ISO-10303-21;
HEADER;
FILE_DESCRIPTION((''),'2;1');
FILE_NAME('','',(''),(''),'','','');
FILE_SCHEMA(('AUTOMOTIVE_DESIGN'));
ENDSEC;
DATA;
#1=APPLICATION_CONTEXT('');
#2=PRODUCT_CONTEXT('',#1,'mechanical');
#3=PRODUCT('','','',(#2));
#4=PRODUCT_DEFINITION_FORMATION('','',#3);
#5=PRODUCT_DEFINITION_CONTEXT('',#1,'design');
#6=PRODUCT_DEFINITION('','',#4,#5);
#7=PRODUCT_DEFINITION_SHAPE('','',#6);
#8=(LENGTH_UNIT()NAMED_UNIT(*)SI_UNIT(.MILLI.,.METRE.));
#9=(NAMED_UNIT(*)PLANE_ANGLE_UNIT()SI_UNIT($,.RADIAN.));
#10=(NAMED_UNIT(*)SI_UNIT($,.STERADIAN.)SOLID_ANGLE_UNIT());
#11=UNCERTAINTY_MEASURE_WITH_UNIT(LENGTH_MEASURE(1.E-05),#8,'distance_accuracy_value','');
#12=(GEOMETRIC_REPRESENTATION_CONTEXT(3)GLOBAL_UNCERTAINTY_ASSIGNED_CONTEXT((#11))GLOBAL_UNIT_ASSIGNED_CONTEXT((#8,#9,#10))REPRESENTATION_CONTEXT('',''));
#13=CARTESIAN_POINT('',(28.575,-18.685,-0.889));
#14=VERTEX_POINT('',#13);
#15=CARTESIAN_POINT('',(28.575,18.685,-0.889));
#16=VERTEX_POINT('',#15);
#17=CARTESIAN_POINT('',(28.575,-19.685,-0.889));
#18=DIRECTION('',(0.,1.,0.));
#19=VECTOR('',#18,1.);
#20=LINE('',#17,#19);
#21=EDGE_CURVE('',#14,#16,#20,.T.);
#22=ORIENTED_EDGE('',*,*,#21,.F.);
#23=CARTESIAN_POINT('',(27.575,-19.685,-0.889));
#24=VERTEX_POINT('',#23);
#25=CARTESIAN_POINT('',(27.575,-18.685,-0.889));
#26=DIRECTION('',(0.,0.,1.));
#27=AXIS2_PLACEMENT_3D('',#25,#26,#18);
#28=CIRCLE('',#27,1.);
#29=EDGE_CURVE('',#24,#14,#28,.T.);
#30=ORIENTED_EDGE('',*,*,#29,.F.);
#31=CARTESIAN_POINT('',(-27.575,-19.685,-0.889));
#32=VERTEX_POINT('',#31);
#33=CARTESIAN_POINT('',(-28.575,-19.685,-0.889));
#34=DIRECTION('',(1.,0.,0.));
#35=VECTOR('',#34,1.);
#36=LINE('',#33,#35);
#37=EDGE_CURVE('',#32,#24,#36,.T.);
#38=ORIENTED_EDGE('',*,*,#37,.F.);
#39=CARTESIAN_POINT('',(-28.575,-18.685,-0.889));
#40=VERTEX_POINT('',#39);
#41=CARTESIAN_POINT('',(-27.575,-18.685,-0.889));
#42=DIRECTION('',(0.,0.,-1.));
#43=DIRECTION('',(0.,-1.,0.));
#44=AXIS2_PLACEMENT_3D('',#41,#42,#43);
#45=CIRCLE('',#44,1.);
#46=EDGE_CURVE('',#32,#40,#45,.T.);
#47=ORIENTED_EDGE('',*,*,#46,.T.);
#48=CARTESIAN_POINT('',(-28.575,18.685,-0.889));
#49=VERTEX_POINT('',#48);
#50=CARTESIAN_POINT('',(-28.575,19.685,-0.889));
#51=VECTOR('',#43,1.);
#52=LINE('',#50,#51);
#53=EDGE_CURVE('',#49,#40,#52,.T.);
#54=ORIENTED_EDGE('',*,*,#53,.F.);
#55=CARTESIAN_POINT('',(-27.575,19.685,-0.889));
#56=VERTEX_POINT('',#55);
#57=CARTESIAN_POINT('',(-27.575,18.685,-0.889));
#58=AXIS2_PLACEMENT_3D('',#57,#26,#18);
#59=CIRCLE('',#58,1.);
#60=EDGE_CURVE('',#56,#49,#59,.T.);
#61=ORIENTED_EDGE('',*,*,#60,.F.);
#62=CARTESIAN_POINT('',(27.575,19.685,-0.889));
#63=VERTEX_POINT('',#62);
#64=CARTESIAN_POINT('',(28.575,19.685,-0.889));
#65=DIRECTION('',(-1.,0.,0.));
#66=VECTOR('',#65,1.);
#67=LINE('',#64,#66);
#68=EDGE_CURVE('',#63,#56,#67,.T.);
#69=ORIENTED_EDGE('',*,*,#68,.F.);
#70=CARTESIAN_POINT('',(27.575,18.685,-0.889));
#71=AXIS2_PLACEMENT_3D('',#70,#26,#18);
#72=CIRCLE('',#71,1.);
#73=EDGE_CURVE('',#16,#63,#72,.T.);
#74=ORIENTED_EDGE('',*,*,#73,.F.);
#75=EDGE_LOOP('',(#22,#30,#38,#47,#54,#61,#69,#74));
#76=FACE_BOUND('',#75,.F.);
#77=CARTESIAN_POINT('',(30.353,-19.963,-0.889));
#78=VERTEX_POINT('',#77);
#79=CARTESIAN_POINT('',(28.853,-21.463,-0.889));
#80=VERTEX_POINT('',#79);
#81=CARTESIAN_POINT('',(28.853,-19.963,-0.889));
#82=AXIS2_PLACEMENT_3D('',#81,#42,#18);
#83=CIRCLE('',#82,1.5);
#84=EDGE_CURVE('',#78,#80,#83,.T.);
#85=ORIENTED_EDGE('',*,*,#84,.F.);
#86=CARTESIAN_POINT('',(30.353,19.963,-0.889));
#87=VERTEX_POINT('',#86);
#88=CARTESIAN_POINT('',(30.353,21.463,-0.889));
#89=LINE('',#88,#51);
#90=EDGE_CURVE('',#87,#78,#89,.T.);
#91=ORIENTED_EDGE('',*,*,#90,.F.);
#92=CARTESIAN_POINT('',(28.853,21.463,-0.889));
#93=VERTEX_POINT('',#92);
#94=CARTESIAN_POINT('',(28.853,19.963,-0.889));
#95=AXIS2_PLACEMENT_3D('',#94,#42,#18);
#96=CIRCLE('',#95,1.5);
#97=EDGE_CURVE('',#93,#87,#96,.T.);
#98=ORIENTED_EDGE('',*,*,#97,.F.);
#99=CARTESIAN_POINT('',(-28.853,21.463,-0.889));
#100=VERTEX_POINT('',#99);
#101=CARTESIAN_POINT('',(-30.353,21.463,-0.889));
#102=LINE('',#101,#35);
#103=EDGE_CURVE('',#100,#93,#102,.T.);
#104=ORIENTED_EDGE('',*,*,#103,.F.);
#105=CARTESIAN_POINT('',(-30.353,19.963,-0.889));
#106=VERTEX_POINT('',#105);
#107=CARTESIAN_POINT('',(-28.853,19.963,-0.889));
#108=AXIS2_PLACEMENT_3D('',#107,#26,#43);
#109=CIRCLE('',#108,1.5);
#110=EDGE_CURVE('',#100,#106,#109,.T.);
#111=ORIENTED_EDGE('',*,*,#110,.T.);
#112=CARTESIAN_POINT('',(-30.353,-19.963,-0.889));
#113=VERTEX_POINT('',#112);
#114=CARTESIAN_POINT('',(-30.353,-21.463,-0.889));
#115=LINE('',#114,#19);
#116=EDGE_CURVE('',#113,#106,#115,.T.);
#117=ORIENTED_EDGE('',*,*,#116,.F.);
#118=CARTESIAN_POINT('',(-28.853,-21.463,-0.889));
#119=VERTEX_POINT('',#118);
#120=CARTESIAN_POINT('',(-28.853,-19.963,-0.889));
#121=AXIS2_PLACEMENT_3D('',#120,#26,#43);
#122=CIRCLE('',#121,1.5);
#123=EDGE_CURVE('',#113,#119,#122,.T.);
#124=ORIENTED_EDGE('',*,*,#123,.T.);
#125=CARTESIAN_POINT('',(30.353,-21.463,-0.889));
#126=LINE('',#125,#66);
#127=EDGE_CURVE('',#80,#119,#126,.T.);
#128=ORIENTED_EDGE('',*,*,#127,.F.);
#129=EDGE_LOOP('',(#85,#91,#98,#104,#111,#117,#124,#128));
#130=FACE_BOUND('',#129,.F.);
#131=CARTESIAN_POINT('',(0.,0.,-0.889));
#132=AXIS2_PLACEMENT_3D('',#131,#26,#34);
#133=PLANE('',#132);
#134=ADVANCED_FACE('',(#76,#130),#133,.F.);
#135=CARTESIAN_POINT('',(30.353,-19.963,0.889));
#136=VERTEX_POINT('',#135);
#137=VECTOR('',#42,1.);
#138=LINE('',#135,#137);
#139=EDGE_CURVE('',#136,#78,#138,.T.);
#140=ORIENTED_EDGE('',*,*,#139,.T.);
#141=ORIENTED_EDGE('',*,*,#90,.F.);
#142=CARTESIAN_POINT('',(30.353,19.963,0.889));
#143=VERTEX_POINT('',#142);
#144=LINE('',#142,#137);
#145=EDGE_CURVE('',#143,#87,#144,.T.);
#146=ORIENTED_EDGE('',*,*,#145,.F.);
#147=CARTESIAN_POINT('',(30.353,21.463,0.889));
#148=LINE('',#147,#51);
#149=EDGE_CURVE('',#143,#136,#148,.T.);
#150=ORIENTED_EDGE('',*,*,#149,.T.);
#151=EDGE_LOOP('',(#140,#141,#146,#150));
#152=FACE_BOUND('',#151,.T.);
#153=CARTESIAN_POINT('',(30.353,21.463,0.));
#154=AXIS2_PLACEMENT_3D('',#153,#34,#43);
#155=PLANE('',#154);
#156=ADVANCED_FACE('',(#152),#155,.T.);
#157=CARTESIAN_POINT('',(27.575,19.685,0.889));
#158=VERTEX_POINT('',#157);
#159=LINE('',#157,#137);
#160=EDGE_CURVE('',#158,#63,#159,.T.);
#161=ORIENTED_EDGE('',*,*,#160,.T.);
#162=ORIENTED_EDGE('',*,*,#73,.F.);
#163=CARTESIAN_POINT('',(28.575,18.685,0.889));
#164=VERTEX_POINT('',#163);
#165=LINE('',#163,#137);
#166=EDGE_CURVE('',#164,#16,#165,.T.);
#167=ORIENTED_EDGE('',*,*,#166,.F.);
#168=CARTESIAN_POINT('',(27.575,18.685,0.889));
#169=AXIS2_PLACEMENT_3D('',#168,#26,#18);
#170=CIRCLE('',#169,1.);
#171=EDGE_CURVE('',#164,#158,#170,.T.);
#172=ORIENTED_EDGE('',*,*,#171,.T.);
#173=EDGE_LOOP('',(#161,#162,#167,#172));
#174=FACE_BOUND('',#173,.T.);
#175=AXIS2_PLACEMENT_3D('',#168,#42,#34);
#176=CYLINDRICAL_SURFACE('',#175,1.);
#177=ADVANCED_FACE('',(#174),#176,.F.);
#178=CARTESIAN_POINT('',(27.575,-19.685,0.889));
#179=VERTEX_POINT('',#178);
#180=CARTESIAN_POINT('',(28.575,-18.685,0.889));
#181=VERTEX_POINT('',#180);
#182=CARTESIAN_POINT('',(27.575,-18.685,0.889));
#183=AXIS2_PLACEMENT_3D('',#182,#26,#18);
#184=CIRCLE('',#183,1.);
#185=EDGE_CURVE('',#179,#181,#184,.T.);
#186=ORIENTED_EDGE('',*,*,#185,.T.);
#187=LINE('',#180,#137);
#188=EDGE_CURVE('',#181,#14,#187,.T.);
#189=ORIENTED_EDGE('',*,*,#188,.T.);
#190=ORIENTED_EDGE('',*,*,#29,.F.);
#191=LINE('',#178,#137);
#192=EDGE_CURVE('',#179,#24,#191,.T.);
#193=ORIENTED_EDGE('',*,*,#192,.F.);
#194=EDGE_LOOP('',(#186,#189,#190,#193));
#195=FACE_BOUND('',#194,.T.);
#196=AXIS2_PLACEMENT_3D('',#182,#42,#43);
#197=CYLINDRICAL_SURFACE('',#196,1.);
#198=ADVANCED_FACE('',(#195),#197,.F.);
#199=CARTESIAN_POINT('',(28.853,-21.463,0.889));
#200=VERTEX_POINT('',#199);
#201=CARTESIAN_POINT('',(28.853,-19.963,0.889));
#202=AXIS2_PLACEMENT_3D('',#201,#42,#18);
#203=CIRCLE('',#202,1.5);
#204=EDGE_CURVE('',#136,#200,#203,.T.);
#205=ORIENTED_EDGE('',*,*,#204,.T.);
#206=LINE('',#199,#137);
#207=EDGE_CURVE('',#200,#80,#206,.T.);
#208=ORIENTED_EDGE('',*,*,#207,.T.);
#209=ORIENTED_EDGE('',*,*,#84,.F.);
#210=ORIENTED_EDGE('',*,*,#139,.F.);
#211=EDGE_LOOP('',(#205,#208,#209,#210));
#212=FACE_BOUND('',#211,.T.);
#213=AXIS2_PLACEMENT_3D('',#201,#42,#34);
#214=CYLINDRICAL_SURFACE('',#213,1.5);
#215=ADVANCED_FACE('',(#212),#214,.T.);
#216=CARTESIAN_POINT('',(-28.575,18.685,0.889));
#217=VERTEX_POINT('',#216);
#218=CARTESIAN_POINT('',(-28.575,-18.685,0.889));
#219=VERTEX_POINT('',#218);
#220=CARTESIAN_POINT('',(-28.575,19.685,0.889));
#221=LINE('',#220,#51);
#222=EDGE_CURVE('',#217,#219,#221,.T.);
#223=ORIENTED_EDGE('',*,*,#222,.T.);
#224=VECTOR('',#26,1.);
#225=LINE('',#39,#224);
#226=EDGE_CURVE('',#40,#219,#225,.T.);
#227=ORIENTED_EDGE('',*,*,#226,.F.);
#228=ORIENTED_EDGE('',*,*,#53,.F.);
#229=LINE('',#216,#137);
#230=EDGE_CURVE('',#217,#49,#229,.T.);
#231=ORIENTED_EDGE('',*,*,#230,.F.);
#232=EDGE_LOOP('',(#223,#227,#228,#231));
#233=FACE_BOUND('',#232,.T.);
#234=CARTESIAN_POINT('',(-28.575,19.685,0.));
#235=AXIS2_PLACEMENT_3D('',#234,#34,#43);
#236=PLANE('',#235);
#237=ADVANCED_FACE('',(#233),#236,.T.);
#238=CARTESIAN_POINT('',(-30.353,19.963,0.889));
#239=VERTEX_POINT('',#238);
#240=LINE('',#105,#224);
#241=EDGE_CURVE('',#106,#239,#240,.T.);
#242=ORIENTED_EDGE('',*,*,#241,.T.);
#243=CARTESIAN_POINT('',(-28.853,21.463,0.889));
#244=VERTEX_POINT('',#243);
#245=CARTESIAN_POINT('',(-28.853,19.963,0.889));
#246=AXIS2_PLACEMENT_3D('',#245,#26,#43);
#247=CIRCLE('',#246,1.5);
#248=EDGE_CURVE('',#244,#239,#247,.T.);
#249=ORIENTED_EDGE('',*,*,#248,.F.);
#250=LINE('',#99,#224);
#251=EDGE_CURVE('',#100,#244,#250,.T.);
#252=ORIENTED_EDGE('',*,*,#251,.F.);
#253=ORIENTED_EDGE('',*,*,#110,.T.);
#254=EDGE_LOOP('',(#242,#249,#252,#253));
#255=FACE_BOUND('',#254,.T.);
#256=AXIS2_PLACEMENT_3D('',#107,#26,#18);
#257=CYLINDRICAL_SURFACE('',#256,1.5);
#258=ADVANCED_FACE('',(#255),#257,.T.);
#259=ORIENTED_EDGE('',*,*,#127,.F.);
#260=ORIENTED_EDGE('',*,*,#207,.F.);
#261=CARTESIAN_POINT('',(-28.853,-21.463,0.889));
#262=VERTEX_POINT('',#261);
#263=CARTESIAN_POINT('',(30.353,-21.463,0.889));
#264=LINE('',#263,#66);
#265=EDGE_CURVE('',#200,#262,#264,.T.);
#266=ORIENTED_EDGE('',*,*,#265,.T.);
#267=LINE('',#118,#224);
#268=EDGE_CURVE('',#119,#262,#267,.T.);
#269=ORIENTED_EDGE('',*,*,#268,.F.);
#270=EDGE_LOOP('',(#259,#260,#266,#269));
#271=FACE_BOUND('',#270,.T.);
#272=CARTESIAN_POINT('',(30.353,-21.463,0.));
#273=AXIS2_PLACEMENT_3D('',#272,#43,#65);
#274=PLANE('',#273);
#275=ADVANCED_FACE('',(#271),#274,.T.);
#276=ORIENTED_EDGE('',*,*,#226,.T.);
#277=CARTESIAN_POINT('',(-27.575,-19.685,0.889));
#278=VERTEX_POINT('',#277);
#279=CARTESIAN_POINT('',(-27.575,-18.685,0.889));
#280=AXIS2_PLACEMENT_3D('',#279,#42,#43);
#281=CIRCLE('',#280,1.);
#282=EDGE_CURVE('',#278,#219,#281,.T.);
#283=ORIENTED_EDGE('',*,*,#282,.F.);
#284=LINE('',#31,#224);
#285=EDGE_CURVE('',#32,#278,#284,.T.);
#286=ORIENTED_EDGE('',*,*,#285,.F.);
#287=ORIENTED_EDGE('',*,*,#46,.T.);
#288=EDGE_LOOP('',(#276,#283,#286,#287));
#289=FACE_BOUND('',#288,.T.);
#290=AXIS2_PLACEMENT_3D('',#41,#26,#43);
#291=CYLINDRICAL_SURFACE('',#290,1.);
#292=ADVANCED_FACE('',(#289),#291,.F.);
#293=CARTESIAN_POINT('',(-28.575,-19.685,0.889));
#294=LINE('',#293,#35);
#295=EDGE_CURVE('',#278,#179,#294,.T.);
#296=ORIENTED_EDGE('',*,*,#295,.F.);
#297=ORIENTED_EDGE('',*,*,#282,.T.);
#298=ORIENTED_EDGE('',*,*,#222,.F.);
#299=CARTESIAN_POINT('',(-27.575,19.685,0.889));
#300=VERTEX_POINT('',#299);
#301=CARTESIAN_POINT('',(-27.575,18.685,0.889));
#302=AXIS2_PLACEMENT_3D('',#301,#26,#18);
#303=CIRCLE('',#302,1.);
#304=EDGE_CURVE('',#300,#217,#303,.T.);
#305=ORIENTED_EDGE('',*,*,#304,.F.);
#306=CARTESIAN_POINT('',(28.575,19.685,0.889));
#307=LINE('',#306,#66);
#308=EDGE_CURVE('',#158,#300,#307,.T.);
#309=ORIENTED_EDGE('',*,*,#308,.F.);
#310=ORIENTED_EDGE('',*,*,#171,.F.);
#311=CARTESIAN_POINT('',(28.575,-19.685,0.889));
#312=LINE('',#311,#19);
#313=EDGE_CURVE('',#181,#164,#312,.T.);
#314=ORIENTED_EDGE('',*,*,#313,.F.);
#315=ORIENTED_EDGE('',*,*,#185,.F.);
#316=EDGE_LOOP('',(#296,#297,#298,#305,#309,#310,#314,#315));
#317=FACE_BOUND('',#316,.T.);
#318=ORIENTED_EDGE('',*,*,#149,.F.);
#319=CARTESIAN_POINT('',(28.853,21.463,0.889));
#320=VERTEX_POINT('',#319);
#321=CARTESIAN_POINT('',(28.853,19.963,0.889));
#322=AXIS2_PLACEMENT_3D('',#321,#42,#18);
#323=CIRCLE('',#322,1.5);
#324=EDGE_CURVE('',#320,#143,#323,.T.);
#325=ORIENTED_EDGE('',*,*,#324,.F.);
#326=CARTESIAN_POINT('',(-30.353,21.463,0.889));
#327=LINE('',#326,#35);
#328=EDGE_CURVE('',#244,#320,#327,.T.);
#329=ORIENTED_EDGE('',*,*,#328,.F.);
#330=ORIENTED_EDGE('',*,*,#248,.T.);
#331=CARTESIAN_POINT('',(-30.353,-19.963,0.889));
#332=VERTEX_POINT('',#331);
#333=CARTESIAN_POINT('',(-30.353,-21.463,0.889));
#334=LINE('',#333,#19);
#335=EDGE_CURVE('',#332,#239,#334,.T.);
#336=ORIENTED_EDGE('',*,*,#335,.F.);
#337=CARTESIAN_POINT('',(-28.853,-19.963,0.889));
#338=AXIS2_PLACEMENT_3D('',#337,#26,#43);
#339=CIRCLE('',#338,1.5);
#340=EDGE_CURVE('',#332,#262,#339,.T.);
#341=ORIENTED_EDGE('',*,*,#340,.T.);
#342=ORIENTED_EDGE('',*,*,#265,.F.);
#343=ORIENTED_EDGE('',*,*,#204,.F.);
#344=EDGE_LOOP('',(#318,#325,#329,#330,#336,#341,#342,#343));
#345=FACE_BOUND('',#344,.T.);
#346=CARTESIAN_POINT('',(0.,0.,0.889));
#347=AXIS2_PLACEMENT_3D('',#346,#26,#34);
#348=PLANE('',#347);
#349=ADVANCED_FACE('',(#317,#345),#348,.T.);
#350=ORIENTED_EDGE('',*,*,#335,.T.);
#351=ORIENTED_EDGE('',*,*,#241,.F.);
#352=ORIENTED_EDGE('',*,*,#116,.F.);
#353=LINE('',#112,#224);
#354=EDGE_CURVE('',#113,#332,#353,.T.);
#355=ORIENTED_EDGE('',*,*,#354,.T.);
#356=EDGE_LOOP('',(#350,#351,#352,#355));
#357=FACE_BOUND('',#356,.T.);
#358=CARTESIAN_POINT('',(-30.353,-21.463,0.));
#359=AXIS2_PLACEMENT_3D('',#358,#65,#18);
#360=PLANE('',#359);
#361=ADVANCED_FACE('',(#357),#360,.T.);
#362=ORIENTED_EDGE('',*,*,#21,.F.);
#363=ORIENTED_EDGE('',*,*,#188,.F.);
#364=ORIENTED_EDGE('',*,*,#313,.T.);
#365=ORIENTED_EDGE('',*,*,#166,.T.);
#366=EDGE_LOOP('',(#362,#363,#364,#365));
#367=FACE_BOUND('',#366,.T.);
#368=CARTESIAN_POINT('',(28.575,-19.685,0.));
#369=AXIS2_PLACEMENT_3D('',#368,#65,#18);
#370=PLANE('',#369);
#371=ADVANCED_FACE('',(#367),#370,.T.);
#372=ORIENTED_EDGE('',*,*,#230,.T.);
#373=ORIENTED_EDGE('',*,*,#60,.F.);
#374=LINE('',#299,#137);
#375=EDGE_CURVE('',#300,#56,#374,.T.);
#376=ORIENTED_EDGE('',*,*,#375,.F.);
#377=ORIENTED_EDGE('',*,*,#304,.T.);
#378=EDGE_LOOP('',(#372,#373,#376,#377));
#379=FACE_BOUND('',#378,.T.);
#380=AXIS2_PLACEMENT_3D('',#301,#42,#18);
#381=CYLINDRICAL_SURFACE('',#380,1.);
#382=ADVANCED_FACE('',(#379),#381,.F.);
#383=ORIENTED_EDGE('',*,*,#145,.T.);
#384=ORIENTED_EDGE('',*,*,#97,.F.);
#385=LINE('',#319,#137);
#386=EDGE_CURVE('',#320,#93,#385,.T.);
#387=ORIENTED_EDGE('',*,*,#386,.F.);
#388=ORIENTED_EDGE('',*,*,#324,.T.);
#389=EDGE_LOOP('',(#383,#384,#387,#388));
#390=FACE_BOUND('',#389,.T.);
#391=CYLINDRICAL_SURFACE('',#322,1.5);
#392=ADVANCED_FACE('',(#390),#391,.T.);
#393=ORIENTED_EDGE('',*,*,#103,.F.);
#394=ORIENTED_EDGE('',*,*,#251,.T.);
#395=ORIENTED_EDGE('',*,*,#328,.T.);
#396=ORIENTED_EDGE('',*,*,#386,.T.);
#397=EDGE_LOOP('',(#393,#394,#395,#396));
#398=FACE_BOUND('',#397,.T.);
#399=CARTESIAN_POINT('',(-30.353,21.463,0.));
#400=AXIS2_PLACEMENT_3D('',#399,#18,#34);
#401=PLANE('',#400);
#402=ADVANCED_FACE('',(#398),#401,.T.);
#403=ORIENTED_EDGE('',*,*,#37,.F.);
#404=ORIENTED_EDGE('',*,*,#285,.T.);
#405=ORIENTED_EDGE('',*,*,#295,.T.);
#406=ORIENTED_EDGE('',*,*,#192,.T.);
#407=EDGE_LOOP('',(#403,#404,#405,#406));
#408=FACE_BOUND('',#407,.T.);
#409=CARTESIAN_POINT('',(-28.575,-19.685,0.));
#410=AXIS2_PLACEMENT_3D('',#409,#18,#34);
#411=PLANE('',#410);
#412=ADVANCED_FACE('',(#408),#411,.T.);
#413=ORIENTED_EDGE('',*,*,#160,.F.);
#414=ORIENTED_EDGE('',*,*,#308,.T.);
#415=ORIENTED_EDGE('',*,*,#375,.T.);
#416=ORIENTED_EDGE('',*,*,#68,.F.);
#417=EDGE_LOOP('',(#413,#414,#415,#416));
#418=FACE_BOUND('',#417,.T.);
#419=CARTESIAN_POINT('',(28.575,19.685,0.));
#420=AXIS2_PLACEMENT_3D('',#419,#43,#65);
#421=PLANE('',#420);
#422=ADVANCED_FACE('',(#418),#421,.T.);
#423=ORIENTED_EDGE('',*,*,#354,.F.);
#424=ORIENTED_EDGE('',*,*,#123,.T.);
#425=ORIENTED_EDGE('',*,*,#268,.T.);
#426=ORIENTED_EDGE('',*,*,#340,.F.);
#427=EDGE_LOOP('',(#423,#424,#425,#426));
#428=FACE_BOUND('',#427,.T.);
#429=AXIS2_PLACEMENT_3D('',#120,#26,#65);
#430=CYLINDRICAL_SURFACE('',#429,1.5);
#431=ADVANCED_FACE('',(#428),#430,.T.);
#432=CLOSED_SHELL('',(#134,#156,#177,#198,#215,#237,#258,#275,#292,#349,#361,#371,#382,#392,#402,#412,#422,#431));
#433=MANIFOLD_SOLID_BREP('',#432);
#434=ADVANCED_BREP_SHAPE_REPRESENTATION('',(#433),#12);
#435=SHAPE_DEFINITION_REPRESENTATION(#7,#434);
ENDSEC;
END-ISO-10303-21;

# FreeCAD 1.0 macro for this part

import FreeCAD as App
import Part
import Sketcher
from FreeCAD import Vector
Q = App.Units.Quantity


def edges_at(feature, points):
    """Names of the edges that pass closest to the given points."""
    edges = feature.Shape.Edges
    near = lambda p: min(range(len(edges)), key=lambda i: edges[i].distToShape(Part.Vertex(*p))[0])
    return sorted({f"Edge{near(p) + 1}" for p in points})

doc = App.newDocument("Part")
body = doc.addObject("PartDesign::Body", "Body")

# Sketch on XY plane
sketch1 = body.newObject("Sketcher::SketchObject", "Sketch")
sketch1.AttachmentSupport = (doc.getObject("XY_Plane"), [""])
sketch1.MapMode = "FlatFace"
sketch1.addGeometry([
    Part.LineSegment(Vector(30, 21, 0), Vector(-30, 21, 0)),  # 0
    Part.LineSegment(Vector(-30, 21, 0), Vector(-30, -21, 0)),  # 1
    Part.LineSegment(Vector(-30, -21, 0), Vector(30, -21, 0)),  # 2
    Part.LineSegment(Vector(30, -21, 0), Vector(30, 21, 0)),  # 3
    Part.LineSegment(Vector(29, -20, 0), Vector(-29, -20, 0)),  # 4
    Part.LineSegment(Vector(-29, -20, 0), Vector(-29, 20, 0)),  # 5
    Part.LineSegment(Vector(-29, 20, 0), Vector(29, 20, 0)),  # 6
    Part.LineSegment(Vector(29, 20, 0), Vector(29, -20, 0)),  # 7
], False)
sketch1.addConstraint([
    Sketcher.Constraint("Coincident", 0, 2, 1, 1),
    Sketcher.Constraint("Coincident", 1, 2, 2, 1),
    Sketcher.Constraint("Coincident", 2, 2, 3, 1),
    Sketcher.Constraint("Coincident", 3, 2, 0, 1),
    Sketcher.Constraint("Coincident", 4, 2, 5, 1),
    Sketcher.Constraint("Coincident", 5, 2, 6, 1),
    Sketcher.Constraint("Coincident", 6, 2, 7, 1),
    Sketcher.Constraint("Coincident", 7, 2, 4, 1),
    Sketcher.Constraint("Horizontal", 0),
    Sketcher.Constraint("Vertical", 1),
    Sketcher.Constraint("Horizontal", 2),
    Sketcher.Constraint("Vertical", 3),
    Sketcher.Constraint("Horizontal", 4),
    Sketcher.Constraint("Vertical", 5),
    Sketcher.Constraint("Horizontal", 6),
    Sketcher.Constraint("Vertical", 7),
    Sketcher.Constraint("Symmetric", 0, 2, 2, 2, -1, 1),
    Sketcher.Constraint("Symmetric", 4, 2, 6, 2, -1, 1),
    Sketcher.Constraint("DistanceX", 4, 2, 4, 1, Q("2.25 in")),
    Sketcher.Constraint("DistanceY", 5, 1, 5, 2, Q("1.55 in")),
    Sketcher.Constraint("DistanceX", 1, 2, 4, 2, Q("0.07 in")),
    Sketcher.Constraint("DistanceY", 1, 2, 4, 2, Q("0.07 in")),
])
pad1 = body.newObject("PartDesign::Pad", "Pad")
pad1.Profile = sketch1
pad1.Length = Q("0.07 in")
pad1.Midplane = True
doc.recompute()

fillet = body.newObject("PartDesign::Fillet", "Fillet")
fillet.Base = (pad1, edges_at(pad1, [
    (-28.575, -19.685, 0),
    (-28.575, 19.685, 0),
    (28.575, 19.685, 0),
    (28.575, -19.685, 0),
]))
fillet.Radius = 1
doc.recompute()

fillet2 = body.newObject("PartDesign::Fillet", "Fillet001")
fillet2.Base = (fillet, edges_at(fillet, [
    (-30.353, 21.463, 0),
    (-30.353, -21.463, 0),
    (30.353, -21.463, 0),
    (30.353, 21.463, 0),
]))
fillet2.Radius = 1.5

doc.recompute()
